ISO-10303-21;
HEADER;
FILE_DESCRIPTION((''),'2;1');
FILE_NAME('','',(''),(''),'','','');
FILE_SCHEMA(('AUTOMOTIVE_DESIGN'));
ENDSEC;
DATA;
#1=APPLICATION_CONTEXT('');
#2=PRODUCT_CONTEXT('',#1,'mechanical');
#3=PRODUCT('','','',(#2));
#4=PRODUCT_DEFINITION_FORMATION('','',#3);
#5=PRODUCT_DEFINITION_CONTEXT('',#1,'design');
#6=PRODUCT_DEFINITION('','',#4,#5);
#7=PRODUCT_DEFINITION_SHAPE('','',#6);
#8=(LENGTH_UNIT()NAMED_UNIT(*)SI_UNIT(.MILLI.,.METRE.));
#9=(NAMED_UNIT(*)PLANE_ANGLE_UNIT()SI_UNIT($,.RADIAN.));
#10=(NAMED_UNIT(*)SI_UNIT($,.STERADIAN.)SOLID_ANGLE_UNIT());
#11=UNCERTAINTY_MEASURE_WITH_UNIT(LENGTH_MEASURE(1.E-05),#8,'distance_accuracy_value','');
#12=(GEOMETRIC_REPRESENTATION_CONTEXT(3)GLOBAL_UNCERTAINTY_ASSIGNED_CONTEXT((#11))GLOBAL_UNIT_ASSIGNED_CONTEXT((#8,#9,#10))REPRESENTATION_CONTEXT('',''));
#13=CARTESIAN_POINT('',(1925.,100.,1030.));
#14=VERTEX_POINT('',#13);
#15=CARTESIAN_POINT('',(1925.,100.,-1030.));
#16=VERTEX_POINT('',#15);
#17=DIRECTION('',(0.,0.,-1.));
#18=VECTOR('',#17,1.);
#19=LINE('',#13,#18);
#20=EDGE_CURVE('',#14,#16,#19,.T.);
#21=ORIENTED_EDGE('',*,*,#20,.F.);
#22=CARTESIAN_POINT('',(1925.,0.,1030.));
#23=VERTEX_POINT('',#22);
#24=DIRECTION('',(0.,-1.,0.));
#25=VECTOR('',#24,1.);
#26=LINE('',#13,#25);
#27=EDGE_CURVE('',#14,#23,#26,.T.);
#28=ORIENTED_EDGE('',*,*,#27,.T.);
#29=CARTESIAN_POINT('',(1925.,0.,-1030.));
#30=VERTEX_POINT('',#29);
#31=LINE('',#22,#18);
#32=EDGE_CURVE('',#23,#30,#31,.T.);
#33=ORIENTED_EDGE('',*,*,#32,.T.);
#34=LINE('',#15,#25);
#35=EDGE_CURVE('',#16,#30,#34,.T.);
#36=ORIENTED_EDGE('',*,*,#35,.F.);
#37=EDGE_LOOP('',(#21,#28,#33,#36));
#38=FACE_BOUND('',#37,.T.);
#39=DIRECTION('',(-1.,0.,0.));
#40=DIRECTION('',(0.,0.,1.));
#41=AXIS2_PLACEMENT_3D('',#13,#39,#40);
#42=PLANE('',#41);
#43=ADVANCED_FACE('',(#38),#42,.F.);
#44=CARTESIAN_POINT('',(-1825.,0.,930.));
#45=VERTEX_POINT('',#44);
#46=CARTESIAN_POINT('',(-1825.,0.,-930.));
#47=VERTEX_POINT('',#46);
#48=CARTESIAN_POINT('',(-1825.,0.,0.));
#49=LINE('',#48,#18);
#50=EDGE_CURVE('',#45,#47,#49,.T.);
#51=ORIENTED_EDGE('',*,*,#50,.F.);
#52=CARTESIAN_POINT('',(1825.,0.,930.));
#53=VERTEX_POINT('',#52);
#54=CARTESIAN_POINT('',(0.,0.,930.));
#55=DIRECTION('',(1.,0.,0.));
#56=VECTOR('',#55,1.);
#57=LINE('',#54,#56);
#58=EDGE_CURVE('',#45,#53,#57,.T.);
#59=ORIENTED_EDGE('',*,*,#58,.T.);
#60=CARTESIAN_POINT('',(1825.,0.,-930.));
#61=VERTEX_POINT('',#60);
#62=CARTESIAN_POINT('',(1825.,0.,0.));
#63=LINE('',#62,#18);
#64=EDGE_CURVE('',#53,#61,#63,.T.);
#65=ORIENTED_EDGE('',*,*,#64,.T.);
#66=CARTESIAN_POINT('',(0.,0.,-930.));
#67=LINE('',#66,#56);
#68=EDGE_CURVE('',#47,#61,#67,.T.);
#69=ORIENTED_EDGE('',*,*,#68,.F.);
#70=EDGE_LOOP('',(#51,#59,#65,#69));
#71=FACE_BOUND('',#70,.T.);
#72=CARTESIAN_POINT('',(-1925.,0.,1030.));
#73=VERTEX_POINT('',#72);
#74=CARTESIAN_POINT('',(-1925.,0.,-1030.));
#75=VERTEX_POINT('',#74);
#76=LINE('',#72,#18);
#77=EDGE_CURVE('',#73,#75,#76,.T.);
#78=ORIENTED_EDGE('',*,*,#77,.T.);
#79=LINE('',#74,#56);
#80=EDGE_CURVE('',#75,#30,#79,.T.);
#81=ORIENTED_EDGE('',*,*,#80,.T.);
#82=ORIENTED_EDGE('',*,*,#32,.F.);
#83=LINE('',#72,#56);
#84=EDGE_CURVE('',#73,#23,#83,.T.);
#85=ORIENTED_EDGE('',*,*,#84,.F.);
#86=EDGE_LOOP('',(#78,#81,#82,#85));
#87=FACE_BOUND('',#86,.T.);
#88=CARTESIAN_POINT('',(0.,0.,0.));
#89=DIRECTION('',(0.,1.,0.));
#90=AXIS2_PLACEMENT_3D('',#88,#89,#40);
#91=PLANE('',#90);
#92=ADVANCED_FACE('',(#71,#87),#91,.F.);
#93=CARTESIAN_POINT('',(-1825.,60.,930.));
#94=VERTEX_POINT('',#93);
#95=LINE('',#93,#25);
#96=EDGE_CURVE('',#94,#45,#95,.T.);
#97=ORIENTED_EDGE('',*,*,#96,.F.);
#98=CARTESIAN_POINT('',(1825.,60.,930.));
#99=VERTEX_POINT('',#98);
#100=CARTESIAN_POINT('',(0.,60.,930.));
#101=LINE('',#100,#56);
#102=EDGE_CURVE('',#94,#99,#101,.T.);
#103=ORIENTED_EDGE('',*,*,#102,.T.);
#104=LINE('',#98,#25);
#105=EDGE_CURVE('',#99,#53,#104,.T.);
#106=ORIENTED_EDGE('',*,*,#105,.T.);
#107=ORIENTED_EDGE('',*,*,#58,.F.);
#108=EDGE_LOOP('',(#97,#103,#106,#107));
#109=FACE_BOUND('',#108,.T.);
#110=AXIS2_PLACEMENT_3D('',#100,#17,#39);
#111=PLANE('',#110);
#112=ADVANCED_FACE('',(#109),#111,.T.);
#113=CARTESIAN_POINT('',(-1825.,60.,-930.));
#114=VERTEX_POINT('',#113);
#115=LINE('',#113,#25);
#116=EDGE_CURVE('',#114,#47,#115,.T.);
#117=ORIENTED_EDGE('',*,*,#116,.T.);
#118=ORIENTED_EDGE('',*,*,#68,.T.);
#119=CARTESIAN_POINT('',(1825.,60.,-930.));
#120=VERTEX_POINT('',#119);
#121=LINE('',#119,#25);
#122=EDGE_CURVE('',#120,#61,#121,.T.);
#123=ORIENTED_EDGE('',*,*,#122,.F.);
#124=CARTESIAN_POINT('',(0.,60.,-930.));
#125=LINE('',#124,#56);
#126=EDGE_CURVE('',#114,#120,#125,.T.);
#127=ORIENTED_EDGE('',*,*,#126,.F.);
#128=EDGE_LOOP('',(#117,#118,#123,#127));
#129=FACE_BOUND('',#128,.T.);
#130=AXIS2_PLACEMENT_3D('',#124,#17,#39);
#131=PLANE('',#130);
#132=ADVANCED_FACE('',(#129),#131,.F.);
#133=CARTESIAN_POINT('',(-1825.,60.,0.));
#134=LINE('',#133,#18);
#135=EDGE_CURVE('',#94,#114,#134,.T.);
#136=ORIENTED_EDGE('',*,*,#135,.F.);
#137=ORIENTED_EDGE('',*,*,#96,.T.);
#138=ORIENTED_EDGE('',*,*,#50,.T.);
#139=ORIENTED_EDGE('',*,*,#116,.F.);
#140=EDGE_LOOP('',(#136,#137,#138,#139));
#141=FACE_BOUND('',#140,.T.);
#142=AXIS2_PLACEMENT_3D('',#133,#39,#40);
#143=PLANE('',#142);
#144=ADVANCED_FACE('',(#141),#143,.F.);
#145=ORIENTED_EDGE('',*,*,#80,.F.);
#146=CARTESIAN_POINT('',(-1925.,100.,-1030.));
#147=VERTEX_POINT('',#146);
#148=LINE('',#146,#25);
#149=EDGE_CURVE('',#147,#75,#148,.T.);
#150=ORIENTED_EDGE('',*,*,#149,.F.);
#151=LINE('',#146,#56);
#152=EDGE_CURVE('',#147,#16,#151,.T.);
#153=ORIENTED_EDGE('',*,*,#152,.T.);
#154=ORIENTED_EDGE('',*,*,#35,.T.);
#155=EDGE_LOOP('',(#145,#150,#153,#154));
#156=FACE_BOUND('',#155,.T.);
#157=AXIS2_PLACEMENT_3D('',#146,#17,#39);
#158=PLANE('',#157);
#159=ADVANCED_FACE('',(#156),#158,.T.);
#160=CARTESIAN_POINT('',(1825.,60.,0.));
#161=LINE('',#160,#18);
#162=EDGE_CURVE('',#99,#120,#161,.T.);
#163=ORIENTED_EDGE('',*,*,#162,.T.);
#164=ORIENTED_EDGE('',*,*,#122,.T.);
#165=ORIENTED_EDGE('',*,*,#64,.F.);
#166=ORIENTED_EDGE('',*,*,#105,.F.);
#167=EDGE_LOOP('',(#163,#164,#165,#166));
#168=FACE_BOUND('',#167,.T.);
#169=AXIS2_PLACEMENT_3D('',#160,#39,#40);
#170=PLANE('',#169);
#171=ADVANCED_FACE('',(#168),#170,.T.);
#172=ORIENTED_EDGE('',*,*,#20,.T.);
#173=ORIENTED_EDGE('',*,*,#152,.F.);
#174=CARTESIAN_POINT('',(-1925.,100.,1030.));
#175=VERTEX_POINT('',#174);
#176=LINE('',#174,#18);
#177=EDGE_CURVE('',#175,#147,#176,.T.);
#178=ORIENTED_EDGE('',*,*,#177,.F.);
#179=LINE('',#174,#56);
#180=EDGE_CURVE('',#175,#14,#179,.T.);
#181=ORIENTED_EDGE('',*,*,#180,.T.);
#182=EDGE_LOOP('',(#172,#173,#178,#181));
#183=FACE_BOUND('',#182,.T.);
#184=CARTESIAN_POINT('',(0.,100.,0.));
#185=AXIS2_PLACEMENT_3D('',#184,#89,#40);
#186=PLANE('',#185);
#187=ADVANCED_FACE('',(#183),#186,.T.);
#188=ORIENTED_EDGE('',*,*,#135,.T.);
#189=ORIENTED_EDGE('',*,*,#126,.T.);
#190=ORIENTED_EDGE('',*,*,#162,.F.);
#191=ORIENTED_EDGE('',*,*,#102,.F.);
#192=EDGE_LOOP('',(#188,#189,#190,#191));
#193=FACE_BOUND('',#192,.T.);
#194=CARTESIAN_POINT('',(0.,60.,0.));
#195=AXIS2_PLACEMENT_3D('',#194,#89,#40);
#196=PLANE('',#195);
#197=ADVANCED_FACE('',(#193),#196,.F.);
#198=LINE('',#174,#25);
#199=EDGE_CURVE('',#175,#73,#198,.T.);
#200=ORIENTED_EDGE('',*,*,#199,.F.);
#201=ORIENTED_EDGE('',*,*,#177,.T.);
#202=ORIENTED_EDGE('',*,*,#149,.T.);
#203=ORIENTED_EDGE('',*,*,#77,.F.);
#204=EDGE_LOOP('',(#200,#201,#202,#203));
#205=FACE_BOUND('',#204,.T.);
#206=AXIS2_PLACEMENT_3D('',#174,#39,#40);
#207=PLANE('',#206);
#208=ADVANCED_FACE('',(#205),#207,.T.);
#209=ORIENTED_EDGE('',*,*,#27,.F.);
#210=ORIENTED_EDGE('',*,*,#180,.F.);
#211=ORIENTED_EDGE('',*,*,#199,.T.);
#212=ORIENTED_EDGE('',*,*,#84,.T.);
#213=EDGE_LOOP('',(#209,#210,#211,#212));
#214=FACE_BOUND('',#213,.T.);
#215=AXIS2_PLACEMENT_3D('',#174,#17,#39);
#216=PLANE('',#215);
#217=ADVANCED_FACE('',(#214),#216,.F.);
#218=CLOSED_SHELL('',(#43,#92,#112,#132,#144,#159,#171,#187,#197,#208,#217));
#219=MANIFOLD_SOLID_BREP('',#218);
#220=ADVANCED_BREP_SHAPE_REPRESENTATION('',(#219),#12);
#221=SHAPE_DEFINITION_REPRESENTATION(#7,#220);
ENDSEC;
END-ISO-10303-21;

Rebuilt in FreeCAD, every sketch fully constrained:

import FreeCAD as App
import Part
import Sketcher

V = App.Vector
Q = App.Units.Quantity

doc = App.newDocument("Part")
body = doc.addObject("PartDesign::Body", "Body")

# Sketch on XZ plane
sketch1 = body.newObject("Sketcher::SketchObject", "Sketch")
sketch1.AttachmentSupport = (doc.getObject("XZ_Plane"), [""])
sketch1.MapMode = "FlatFace"
sketch1.addGeometry([
    Part.LineSegment(V(-1925, -1030, 0), V(-1925, 1030, 0)),
    Part.LineSegment(V(-1925, 1030, 0), V(1925, 1030, 0)),
    Part.LineSegment(V(1925, 1030, 0), V(1925, -1030, 0)),
    Part.LineSegment(V(1925, -1030, 0), V(-1925, -1030, 0)),
], False)
sketch1.addConstraint([
    Sketcher.Constraint("Coincident", 0, 2, 1, 1),
    Sketcher.Constraint("Coincident", 1, 2, 2, 1),
    Sketcher.Constraint("Coincident", 2, 2, 3, 1),
    Sketcher.Constraint("Coincident", 3, 2, 0, 1),
    Sketcher.Constraint("Vertical", 0),
    Sketcher.Constraint("Horizontal", 1),
    Sketcher.Constraint("Vertical", 2),
    Sketcher.Constraint("Horizontal", 3),
    Sketcher.Constraint("Symmetric", 0, 2, 2, 2, -1, 1),
    Sketcher.Constraint("DistanceX", 1, 1, 1, 2, Q("3850 mm")),
    Sketcher.Constraint("DistanceY", 0, 1, 0, 2, Q("2060 mm")),
])
pad1 = body.newObject("PartDesign::Pad", "Pad")
pad1.Profile = sketch1
pad1.Length = 100
pad1.Reversed = True

# Sketch on XZ plane
sketch2 = body.newObject("Sketcher::SketchObject", "Sketch001")
sketch2.AttachmentSupport = (doc.getObject("XZ_Plane"), [""])
sketch2.MapMode = "FlatFace"
sketch2.addGeometry([
    Part.LineSegment(V(-1825, -930, 0), V(-1825, 930, 0)),
    Part.LineSegment(V(-1825, 930, 0), V(1825, 930, 0)),
    Part.LineSegment(V(1825, 930, 0), V(1825, -930, 0)),
    Part.LineSegment(V(1825, -930, 0), V(-1825, -930, 0)),
], False)
sketch2.addConstraint([
    Sketcher.Constraint("Coincident", 0, 2, 1, 1),
    Sketcher.Constraint("Coincident", 1, 2, 2, 1),
    Sketcher.Constraint("Coincident", 2, 2, 3, 1),
    Sketcher.Constraint("Coincident", 3, 2, 0, 1),
    Sketcher.Constraint("Vertical", 0),
    Sketcher.Constraint("Horizontal", 1),
    Sketcher.Constraint("Vertical", 2),
    Sketcher.Constraint("Horizontal", 3),
    Sketcher.Constraint("Symmetric", 0, 2, 2, 2, -1, 1),
    Sketcher.Constraint("DistanceX", 1, 1, 1, 2, Q("3650 mm")),
    Sketcher.Constraint("DistanceY", 0, 1, 0, 2, Q("1860 mm")),
])
pocket1 = body.newObject("PartDesign::Pocket", "Pocket")
pocket1.Profile = sketch2
pocket1.Length = 60

doc.recompute()
